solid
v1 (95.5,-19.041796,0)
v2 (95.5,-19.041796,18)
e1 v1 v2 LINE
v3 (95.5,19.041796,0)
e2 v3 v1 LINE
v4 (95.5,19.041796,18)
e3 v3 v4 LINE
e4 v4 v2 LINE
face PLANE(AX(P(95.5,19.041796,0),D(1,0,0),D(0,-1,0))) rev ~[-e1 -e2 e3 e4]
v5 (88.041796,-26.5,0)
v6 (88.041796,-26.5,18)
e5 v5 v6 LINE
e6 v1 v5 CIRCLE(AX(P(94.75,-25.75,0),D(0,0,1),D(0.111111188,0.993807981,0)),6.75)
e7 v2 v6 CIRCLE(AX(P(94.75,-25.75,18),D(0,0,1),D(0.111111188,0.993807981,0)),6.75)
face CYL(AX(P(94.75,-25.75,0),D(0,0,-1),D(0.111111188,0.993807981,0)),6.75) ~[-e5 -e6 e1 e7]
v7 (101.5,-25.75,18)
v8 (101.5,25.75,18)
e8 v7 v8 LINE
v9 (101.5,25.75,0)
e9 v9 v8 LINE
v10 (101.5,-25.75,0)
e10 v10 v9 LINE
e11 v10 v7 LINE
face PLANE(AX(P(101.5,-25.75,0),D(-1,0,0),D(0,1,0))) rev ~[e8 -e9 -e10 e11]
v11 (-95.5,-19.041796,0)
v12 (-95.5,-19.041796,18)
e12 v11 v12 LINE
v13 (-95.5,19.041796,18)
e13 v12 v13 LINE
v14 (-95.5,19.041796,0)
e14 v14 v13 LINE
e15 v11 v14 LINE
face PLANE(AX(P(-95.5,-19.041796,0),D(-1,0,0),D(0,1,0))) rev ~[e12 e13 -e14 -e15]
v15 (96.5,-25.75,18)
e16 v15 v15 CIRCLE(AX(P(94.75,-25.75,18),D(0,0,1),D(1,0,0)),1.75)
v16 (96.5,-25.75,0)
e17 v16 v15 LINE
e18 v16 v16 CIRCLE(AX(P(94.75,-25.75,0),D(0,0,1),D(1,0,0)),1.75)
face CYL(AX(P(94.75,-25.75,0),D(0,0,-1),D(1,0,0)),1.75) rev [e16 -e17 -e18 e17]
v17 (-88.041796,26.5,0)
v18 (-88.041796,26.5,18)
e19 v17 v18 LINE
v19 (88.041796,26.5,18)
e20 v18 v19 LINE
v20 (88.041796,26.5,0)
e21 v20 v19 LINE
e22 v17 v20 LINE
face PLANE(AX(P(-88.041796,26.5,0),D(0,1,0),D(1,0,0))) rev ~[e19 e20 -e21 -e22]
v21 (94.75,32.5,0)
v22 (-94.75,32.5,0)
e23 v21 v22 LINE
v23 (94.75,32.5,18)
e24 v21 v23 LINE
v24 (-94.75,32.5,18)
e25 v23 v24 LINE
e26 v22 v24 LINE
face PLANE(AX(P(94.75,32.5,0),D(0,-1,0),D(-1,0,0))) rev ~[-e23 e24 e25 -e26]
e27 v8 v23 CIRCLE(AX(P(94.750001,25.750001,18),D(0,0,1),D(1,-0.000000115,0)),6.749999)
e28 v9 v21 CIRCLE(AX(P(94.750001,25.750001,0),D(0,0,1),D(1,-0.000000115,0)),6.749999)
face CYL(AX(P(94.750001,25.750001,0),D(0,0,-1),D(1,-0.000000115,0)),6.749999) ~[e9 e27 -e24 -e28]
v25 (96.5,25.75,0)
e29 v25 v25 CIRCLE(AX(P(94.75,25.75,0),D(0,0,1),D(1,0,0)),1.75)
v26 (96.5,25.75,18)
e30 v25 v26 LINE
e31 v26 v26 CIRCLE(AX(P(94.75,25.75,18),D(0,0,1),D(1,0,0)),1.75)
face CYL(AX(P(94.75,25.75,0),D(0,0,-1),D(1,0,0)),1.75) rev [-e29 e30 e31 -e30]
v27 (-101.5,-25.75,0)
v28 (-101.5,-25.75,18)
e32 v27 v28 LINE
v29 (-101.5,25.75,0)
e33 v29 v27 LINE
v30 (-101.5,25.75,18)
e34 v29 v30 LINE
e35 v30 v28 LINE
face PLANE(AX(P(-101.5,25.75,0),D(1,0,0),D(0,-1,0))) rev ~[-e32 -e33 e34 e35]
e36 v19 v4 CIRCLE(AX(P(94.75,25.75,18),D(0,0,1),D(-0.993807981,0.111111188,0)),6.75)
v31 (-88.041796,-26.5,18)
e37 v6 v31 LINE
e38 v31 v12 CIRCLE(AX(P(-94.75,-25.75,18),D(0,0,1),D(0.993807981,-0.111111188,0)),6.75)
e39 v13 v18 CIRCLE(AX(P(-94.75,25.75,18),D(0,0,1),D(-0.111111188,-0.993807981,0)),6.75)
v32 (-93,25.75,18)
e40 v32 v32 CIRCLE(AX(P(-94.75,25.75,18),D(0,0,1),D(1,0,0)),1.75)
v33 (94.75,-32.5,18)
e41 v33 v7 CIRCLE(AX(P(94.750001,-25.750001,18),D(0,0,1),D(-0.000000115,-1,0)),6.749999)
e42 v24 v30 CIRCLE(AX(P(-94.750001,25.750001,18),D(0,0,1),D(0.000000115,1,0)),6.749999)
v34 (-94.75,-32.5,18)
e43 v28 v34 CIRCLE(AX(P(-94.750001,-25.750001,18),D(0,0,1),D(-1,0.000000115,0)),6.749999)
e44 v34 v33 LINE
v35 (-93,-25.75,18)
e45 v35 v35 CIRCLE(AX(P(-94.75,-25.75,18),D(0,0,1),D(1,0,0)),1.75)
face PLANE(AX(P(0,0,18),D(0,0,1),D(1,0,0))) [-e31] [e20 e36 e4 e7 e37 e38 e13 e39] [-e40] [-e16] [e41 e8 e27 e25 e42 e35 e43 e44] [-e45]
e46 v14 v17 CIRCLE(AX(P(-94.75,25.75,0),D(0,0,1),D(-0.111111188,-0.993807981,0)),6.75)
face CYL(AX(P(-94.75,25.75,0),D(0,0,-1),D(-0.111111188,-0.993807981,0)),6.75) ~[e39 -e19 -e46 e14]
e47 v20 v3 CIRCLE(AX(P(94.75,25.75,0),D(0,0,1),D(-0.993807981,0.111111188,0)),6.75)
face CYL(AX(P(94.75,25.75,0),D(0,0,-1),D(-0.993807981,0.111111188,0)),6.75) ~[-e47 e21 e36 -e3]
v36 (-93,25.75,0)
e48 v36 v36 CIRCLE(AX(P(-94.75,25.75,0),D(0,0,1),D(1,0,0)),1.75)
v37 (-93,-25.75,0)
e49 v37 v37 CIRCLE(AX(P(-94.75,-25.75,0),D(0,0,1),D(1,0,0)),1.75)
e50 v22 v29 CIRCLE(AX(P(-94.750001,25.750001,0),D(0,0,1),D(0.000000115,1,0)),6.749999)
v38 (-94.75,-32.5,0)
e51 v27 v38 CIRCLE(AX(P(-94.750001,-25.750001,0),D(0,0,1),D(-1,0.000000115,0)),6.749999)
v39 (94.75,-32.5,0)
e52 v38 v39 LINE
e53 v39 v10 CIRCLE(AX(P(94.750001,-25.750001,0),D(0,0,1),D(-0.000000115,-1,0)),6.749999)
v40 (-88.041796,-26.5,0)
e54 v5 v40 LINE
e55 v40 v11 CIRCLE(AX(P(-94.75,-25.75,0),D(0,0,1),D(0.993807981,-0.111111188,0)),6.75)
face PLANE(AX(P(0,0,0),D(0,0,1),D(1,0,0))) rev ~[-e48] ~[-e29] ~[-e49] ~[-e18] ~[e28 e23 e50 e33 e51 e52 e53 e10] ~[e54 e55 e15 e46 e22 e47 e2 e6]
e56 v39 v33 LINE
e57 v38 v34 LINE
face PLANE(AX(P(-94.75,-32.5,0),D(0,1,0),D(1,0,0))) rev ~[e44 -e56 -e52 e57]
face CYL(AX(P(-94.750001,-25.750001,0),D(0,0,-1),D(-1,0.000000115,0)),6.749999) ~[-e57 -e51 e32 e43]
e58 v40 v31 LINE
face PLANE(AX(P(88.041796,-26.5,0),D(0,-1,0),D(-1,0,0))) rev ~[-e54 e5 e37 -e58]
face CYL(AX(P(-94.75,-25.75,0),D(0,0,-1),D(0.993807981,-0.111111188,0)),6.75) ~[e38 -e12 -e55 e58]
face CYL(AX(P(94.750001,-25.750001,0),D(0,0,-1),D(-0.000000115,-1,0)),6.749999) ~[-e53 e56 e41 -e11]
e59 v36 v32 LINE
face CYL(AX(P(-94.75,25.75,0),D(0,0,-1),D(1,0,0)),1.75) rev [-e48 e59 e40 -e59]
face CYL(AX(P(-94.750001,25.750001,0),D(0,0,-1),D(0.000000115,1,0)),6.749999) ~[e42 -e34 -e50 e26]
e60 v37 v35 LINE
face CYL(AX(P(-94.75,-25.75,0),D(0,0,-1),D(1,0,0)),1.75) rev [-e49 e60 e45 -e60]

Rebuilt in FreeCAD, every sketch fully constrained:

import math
import FreeCAD as App
import Part
import Sketcher

V = App.Vector
Q = App.Units.Quantity

doc = App.newDocument("Part")
params = doc.addObject("Spreadsheet::Sheet", "Params")
for row, (alias, value) in enumerate([
    ("sketch1_diameter", "3.5 mm"),
    ("sketch1_radius", "6.749999 mm"),
    ("sketch1_width", "189.5 mm"),
    ("sketch1_height", "51.5 mm"),
    ("pad1_length", "18 mm"),
], start=1):
    params.set(f"A{row}", alias)
    params.set(f"B{row}", "=" + value)
    params.setAlias(f"B{row}", alias)

body = doc.addObject("PartDesign::Body", "Body")

# Sketch on XY plane
sketch1 = body.newObject("Sketcher::SketchObject", "Sketch")
sketch1.AttachmentSupport = (doc.getObject("XY_Plane"), [""])
sketch1.MapMode = "FlatFace"
sketch1.addGeometry([
    Part.LineSegment(V(-94.8, -32.5, 0), V(94.8, -32.5, 0)),  # 0
    Part.ArcOfCircle(Part.Circle(V(94.8, -25.8, 0), V(0, 0, 1), 6.7), math.radians(-90), math.radians(0)),  # 1
    Part.LineSegment(V(101.5, -25.8, 0), V(101.5, 25.8, 0)),  # 2
    Part.ArcOfCircle(Part.Circle(V(94.8, 25.8, 0), V(0, 0, 1), 6.7), math.radians(0), math.radians(90)),  # 3
    Part.LineSegment(V(94.8, 32.5, 0), V(-94.8, 32.5, 0)),  # 4
    Part.ArcOfCircle(Part.Circle(V(-94.8, 25.8, 0), V(0, 0, 1), 6.7), math.radians(90), math.radians(180)),  # 5
    Part.LineSegment(V(-101.5, 25.8, 0), V(-101.5, -25.8, 0)),  # 6
    Part.ArcOfCircle(Part.Circle(V(-94.8, -25.8, 0), V(0, 0, 1), 6.7), math.radians(180), math.radians(270)),  # 7
    Part.Circle(V(-94.8, -25.8, 0), V(0, 0, 1), 1.8),  # 8
    Part.Circle(V(94.8, -25.8, 0), V(0, 0, 1), 1.8),  # 9
    Part.Circle(V(-94.8, 25.8, 0), V(0, 0, 1), 1.8),  # 10
    Part.LineSegment(V(-88, 26.5, 0), V(88, 26.5, 0)),  # 11
    Part.ArcOfCircle(Part.Circle(V(94.7, 25.7, 0), V(0, 0, 1), 6.7), math.radians(174), math.radians(276)),  # 12
    Part.LineSegment(V(95.5, 19, 0), V(95.5, -19, 0)),  # 13
    Part.ArcOfCircle(Part.Circle(V(94.7, -25.7, 0), V(0, 0, 1), 6.7), math.radians(84), math.radians(186)),  # 14
    Part.LineSegment(V(88, -26.5, 0), V(-88, -26.5, 0)),  # 15
    Part.ArcOfCircle(Part.Circle(V(-94.7, -25.7, 0), V(0, 0, 1), 6.7), math.radians(-6), math.radians(96)),  # 16
    Part.LineSegment(V(-95.5, -19, 0), V(-95.5, 19, 0)),  # 17
    Part.ArcOfCircle(Part.Circle(V(-94.7, 25.7, 0), V(0, 0, 1), 6.7), math.radians(-96), math.radians(6)),  # 18
    Part.Circle(V(94.8, 25.8, 0), V(0, 0, 1), 1.8),  # 19
], False)
sketch1.addConstraint([
    Sketcher.Constraint("Tangent", 0, 2, 1, 1),
    Sketcher.Constraint("Tangent", 1, 2, 2, 1),
    Sketcher.Constraint("Tangent", 2, 2, 3, 1),
    Sketcher.Constraint("Tangent", 3, 2, 4, 1),
    Sketcher.Constraint("Tangent", 4, 2, 5, 1),
    Sketcher.Constraint("Tangent", 5, 2, 6, 1),
    Sketcher.Constraint("Tangent", 6, 2, 7, 1),
    Sketcher.Constraint("Tangent", 7, 2, 0, 1),
    Sketcher.Constraint("Coincident", 11, 2, 12, 1),
    Sketcher.Constraint("Coincident", 12, 2, 13, 1),
    Sketcher.Constraint("Coincident", 13, 2, 14, 1),
    Sketcher.Constraint("Coincident", 14, 2, 15, 1),
    Sketcher.Constraint("Coincident", 15, 2, 16, 1),
    Sketcher.Constraint("Coincident", 16, 2, 17, 1),
    Sketcher.Constraint("Coincident", 17, 2, 18, 1),
    Sketcher.Constraint("Coincident", 18, 2, 11, 1),
    Sketcher.Constraint("Horizontal", 0),
    Sketcher.Constraint("Vertical", 2),
    Sketcher.Constraint("Horizontal", 4),
    Sketcher.Constraint("Vertical", 6),
    Sketcher.Constraint("Horizontal", 11),
    Sketcher.Constraint("Vertical", 13),
    Sketcher.Constraint("Horizontal", 15),
    Sketcher.Constraint("Vertical", 17),
    Sketcher.Constraint("Coincident", 8, 3, 7, 3),
    Sketcher.Constraint("Coincident", 9, 3, 1, 3),
    Sketcher.Constraint("Coincident", 10, 3, 5, 3),
    Sketcher.Constraint("Coincident", 12, 3, 3, 3),
    Sketcher.Constraint("Coincident", 14, 3, 1, 3),
    Sketcher.Constraint("Coincident", 16, 3, 7, 3),
    Sketcher.Constraint("Coincident", 18, 3, 5, 3),
    Sketcher.Constraint("Coincident", 19, 3, 3, 3),
    Sketcher.Constraint("Equal", 1, 3),
    Sketcher.Constraint("Equal", 3, 5),
    Sketcher.Constraint("Equal", 5, 7),
    Sketcher.Constraint("Equal", 8, 9),
    Sketcher.Constraint("Equal", 9, 10),
    Sketcher.Constraint("Equal", 7, 12),
    Sketcher.Constraint("Equal", 12, 14),
    Sketcher.Constraint("Equal", 14, 16),
    Sketcher.Constraint("Equal", 16, 18),
    Sketcher.Constraint("Equal", 10, 19),
    Sketcher.Constraint("Symmetric", 1, 3, 5, 3, -1, 1),
    Sketcher.Constraint("Horizontal", 13, 2, 16, 2),
    Sketcher.Constraint("Vertical", 11, 2, 14, 2),
    Sketcher.Constraint("Diameter", 8, Q("3.5 mm")),
    Sketcher.Constraint("Radius", 1, Q("6.749999 mm")),
    Sketcher.Constraint("DistanceX", 0, 1, 0, 2, Q("189.5 mm")),
    Sketcher.Constraint("DistanceY", 2, 1, 2, 2, Q("51.5 mm")),
    Sketcher.Constraint("DistanceY", 11, 2, 3, 2, Q("6 mm")),
    Sketcher.Constraint("DistanceX", 12, 2, 2, 2, Q("6 mm")),
])
sketch1.setExpression("Constraints[45]", "Params.sketch1_diameter")
sketch1.setExpression("Constraints[46]", "Params.sketch1_radius")
sketch1.setExpression("Constraints[47]", "Params.sketch1_width")
sketch1.setExpression("Constraints[48]", "Params.sketch1_height")
pad1 = body.newObject("PartDesign::Pad", "Pad")
pad1.Profile = sketch1
pad1.setExpression("Length", "Params.pad1_length")

doc.recompute()
